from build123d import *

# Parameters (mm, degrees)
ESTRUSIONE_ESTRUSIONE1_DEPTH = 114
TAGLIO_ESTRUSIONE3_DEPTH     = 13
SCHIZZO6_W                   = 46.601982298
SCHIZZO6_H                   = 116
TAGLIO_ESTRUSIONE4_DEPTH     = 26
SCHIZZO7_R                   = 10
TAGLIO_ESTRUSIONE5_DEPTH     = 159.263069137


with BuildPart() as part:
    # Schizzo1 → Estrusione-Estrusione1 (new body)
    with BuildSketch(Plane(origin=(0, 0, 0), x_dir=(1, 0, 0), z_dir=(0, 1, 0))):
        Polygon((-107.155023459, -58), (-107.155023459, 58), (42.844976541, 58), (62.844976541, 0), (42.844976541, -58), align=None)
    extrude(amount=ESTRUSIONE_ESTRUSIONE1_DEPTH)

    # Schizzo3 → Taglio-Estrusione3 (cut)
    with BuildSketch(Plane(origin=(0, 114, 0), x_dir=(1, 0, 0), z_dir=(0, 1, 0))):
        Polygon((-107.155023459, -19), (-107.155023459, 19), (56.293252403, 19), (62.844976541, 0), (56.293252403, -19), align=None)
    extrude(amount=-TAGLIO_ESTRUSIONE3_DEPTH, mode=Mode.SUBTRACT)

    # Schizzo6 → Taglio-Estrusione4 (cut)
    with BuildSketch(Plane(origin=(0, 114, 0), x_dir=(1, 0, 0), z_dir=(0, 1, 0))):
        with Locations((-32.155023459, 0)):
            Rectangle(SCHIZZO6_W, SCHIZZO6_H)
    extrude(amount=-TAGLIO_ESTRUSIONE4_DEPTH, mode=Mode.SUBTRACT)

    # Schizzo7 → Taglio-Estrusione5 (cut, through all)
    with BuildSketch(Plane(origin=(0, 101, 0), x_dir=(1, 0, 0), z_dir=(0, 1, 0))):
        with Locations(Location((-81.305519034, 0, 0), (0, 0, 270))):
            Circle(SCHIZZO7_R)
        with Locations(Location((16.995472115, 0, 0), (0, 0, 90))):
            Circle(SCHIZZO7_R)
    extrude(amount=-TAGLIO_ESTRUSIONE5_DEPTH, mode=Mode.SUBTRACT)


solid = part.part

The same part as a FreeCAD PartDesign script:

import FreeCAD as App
import Part
import Sketcher
Q = App.Units.Quantity


def add_polygon(sketch, points):
    """Adds a closed chain of lines whose ends are joined by coincident constraints."""
    first, n = sketch.GeometryCount, len(points)
    for a, b in zip(points, points[1:] + points[:1]):
        sketch.addGeometry(Part.LineSegment(App.Vector(*a, 0), App.Vector(*b, 0)), False)
    for i in range(n):
        sketch.addConstraint(Sketcher.Constraint("Coincident", first + i, 2, first + (i + 1) % n, 1))

doc = App.newDocument("Part")
body = doc.addObject("PartDesign::Body", "Body")

# Sketch on XZ plane
sketch1 = body.newObject("Sketcher::SketchObject", "Sketch")
sketch1.AttachmentSupport = (doc.getObject("XZ_Plane"), [""])
sketch1.MapMode = "FlatFace"
add_polygon(sketch1, [(-107, -58), (-107, 58), (43, 58), (63, 0), (43, -58)])  # lines 0-4
sketch1.addConstraint(Sketcher.Constraint("Vertical", 0))
sketch1.addConstraint(Sketcher.Constraint("Horizontal", 1))
sketch1.addConstraint(Sketcher.Constraint("Horizontal", 4))
sketch1.addConstraint(Sketcher.Constraint("Symmetric", 1, 2, 3, 2, -1))
sketch1.addConstraint(Sketcher.Constraint("PointOnObject", 2, 2, -1))
sketch1.addConstraint(Sketcher.Constraint("DistanceX", 1, 1, 1, 2, Q("150 mm")))
sketch1.addConstraint(Sketcher.Constraint("DistanceY", 0, 1, 0, 2, Q("116 mm")))
sketch1.addConstraint(Sketcher.Constraint("DistanceX", 1, 2, 2, 2, Q("20 mm")))
sketch1.addConstraint(Sketcher.Constraint("DistanceX", 0, 2, -1, 1, Q("107.155023 mm")))
pad1 = body.newObject("PartDesign::Pad", "Pad")
pad1.Profile = sketch1
pad1.Length = 114
pad1.Reversed = True

# Sketch on XZ plane
sketch2 = body.newObject("Sketcher::SketchObject", "Sketch001")
sketch2.AttachmentSupport = (doc.getObject("XZ_Plane"), [""])
sketch2.MapMode = "FlatFace"
sketch2.AttachmentOffset = App.Placement(App.Vector(0, 0, -114), App.Rotation())
add_polygon(sketch2, [(-107, -19), (-107, 19), (56, 19), (63, 0), (56, -19)])  # lines 0-4
sketch2.addConstraint(Sketcher.Constraint("Vertical", 0))
sketch2.addConstraint(Sketcher.Constraint("Horizontal", 1))
sketch2.addConstraint(Sketcher.Constraint("Horizontal", 4))
sketch2.addConstraint(Sketcher.Constraint("Symmetric", 1, 2, 3, 2, -1))
sketch2.addConstraint(Sketcher.Constraint("PointOnObject", 2, 2, -1))
sketch2.addConstraint(Sketcher.Constraint("DistanceY", 0, 1, 0, 2, Q("38 mm")))
sketch2.addConstraint(Sketcher.Constraint("DistanceX", 0, 2, 2, 2, Q("170 mm")))
sketch2.addConstraint(Sketcher.Constraint("DistanceX", 1, 1, 1, 2, Q("163.448276 mm")))
sketch2.addConstraint(Sketcher.Constraint("DistanceX", 0, 2, -1, 1, Q("107.155023 mm")))
pocket1 = body.newObject("PartDesign::Pocket", "Pocket")
pocket1.Profile = sketch2
pocket1.Length = 13
pocket1.Reversed = True

# Sketch on XZ plane
sketch3 = body.newObject("Sketcher::SketchObject", "Sketch002")
sketch3.AttachmentSupport = (doc.getObject("XZ_Plane"), [""])
sketch3.MapMode = "FlatFace"
sketch3.AttachmentOffset = App.Placement(App.Vector(0, 0, -114), App.Rotation())
add_polygon(sketch3, [(-55, -58), (-55, 58), (-9, 58), (-9, -58)])  # lines 0-3
sketch3.addConstraint(Sketcher.Constraint("Vertical", 0))
sketch3.addConstraint(Sketcher.Constraint("Horizontal", 1))
sketch3.addConstraint(Sketcher.Constraint("Vertical", 2))
sketch3.addConstraint(Sketcher.Constraint("Horizontal", 3))
sketch3.addConstraint(Sketcher.Constraint("DistanceY", 0, 1, 0, 2, Q("116 mm")))
sketch3.addConstraint(Sketcher.Constraint("DistanceY", -1, 1, 0, 2, Q("58 mm")))
sketch3.addConstraint(Sketcher.Constraint("DistanceX", 1, 1, 1, 2, Q("46.601982 mm")))
sketch3.addConstraint(Sketcher.Constraint("DistanceX", 0, 2, -1, 1, Q("55.456015 mm")))
pocket2 = body.newObject("PartDesign::Pocket", "Pocket001")
pocket2.Profile = sketch3
pocket2.Length = 26
pocket2.Reversed = True

# Sketch on XZ plane
sketch4 = body.newObject("Sketcher::SketchObject", "Sketch003")
sketch4.AttachmentSupport = (doc.getObject("XZ_Plane"), [""])
sketch4.MapMode = "FlatFace"
sketch4.AttachmentOffset = App.Placement(App.Vector(0, 0, -101), App.Rotation())
sketch4.addGeometry(Part.Circle(App.Vector(-81, 0, 0), App.Vector(0, 0, 1), 10), False)
sketch4.addGeometry(Part.Circle(App.Vector(17, 0, 0), App.Vector(0, 0, 1), 10), False)
sketch4.addConstraint(Sketcher.Constraint("Equal", 0, 1))
sketch4.addConstraint(Sketcher.Constraint("PointOnObject", 0, 3, -1))
sketch4.addConstraint(Sketcher.Constraint("PointOnObject", 1, 3, -1))
sketch4.addConstraint(Sketcher.Constraint("Diameter", 0, Q("20 mm")))
sketch4.addConstraint(Sketcher.Constraint("DistanceX", 0, 3, -1, 1, Q("81.305519 mm")))
sketch4.addConstraint(Sketcher.Constraint("DistanceX", 0, 3, 1, 3, Q("98.300991 mm")))
pocket3 = body.newObject("PartDesign::Pocket", "Pocket002")
pocket3.Profile = sketch4
pocket3.Type = "ThroughAll"
pocket3.Reversed = True

doc.recompute()
